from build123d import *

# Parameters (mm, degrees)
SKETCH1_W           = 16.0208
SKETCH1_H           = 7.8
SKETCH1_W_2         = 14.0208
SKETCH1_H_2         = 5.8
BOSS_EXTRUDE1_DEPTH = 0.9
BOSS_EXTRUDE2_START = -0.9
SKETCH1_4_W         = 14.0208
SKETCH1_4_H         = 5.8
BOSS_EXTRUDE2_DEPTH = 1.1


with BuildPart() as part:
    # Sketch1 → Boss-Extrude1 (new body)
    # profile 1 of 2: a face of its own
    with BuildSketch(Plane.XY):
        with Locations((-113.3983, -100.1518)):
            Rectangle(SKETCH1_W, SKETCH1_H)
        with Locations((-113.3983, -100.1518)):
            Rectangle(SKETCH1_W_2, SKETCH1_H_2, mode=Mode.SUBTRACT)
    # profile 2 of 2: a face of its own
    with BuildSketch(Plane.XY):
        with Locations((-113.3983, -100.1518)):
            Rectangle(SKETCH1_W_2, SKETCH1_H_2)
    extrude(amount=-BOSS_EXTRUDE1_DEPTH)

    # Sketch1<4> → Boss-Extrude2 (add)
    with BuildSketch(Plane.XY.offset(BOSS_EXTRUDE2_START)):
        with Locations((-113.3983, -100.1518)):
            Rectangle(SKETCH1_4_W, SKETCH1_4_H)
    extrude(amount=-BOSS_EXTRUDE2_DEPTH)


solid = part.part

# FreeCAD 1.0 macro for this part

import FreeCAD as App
import Part
import Sketcher

doc = App.newDocument("Part")
body = doc.addObject("PartDesign::Body", "Body")

# Sketch on XY plane
sketch1 = body.newObject("Sketcher::SketchObject", "Sketch")
sketch1.AttachmentSupport = (doc.getObject("XY_Plane"), [""])
sketch1.MapMode = "FlatFace"
sketch1.addGeometry([
    Part.LineSegment(App.Vector(-121, -96, 0), App.Vector(-121, -104, 0)),
    Part.LineSegment(App.Vector(-121, -104, 0), App.Vector(-105, -104, 0)),
    Part.LineSegment(App.Vector(-105, -104, 0), App.Vector(-105, -96, 0)),
    Part.LineSegment(App.Vector(-105, -96, 0), App.Vector(-121, -96, 0)),
], False)
sketch1.addConstraint([
    Sketcher.Constraint("Coincident", 0, 2, 1, 1),
    Sketcher.Constraint("Coincident", 1, 2, 2, 1),
    Sketcher.Constraint("Coincident", 2, 2, 3, 1),
    Sketcher.Constraint("Coincident", 3, 2, 0, 1),
    Sketcher.Constraint("Vertical", 0),
    Sketcher.Constraint("Horizontal", 1),
    Sketcher.Constraint("Vertical", 2),
    Sketcher.Constraint("Horizontal", 3),
    Sketcher.Constraint("DistanceY", 0, 2, 0, 1, 7.8),
    Sketcher.Constraint("DistanceX", 1, 1, 1, 2, 16.0208),
    Sketcher.Constraint("DistanceX", 0, 2, -1, 1, 121.4087),
    Sketcher.Constraint("DistanceY", 0, 2, -1, 1, 104.0518),
])
pad1 = body.newObject("PartDesign::Pad", "Pad")
pad1.Profile = sketch1
pad1.Length = 0.9
pad1.Reversed = True

# Sketch on XY plane
sketch2 = body.newObject("Sketcher::SketchObject", "Sketch001")
sketch2.AttachmentSupport = (doc.getObject("XY_Plane"), [""])
sketch2.MapMode = "FlatFace"
sketch2.AttachmentOffset = App.Placement(App.Vector(0, 0, -0.9), App.Rotation())
sketch2.addGeometry([
    Part.LineSegment(App.Vector(-120, -97, 0), App.Vector(-120, -103, 0)),
    Part.LineSegment(App.Vector(-120, -103, 0), App.Vector(-106, -103, 0)),
    Part.LineSegment(App.Vector(-106, -103, 0), App.Vector(-106, -97, 0)),
    Part.LineSegment(App.Vector(-106, -97, 0), App.Vector(-120, -97, 0)),
], False)
sketch2.addConstraint([
    Sketcher.Constraint("Coincident", 0, 2, 1, 1),
    Sketcher.Constraint("Coincident", 1, 2, 2, 1),
    Sketcher.Constraint("Coincident", 2, 2, 3, 1),
    Sketcher.Constraint("Coincident", 3, 2, 0, 1),
    Sketcher.Constraint("Vertical", 0),
    Sketcher.Constraint("Horizontal", 1),
    Sketcher.Constraint("Vertical", 2),
    Sketcher.Constraint("Horizontal", 3),
    Sketcher.Constraint("DistanceY", 0, 2, 0, 1, 5.8),
    Sketcher.Constraint("DistanceX", 1, 1, 1, 2, 14.0208),
    Sketcher.Constraint("DistanceX", 0, 2, -1, 1, 120.4087),
    Sketcher.Constraint("DistanceY", 0, 2, -1, 1, 103.0518),
])
pad2 = body.newObject("PartDesign::Pad", "Pad001")
pad2.Profile = sketch2
pad2.Length = 1.1
pad2.Reversed = True

doc.recompute()
